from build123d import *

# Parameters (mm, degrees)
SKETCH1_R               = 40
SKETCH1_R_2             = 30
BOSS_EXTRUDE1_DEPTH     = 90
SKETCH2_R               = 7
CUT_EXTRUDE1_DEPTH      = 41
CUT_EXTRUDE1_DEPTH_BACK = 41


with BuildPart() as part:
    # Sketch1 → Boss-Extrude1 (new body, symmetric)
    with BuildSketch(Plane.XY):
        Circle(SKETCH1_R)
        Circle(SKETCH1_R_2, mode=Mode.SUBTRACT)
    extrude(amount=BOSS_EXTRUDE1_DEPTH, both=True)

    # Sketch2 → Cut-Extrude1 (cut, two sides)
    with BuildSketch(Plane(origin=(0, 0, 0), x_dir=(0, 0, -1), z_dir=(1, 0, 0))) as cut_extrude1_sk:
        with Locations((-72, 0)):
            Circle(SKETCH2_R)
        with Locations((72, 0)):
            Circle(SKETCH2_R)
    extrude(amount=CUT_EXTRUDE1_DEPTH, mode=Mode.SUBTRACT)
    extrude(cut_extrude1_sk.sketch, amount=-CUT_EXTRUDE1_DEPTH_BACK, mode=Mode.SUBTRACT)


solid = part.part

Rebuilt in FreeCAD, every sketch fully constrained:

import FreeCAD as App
import Part
import Sketcher
Q = App.Units.Quantity

doc = App.newDocument("Part")
params = doc.addObject("Spreadsheet::Sheet", "Params")
for row, (alias, value) in enumerate([
    ("sketch1_diameter", "80 mm"),
    ("sketch1_diameter2", "60 mm"),
    ("pad1_length", "180 mm"),
    ("sketch2_diameter", "14 mm"),
], start=1):
    params.set(f"A{row}", alias)
    params.set(f"B{row}", "=" + value)
    params.setAlias(f"B{row}", alias)

body = doc.addObject("PartDesign::Body", "Body")

sketch1 = body.newObject("Sketcher::SketchObject", "Sketch")
sketch1.AttachmentSupport = (doc.getObject("XY_Plane"), [""])
sketch1.MapMode = "FlatFace"
sketch1.addGeometry([
    Part.Circle(App.Vector(0, 0, 0), App.Vector(0, 0, 1), 40),
    Part.Circle(App.Vector(0, 0, 0), App.Vector(0, 0, 1), 30),
], False)
sketch1.addConstraint([
    Sketcher.Constraint("Coincident", 0, 3, -1, 1),
    Sketcher.Constraint("Coincident", 1, 3, -1, 1),
    Sketcher.Constraint("Diameter", 0, Q("80 mm")),
    Sketcher.Constraint("Diameter", 1, Q("60 mm")),
])
sketch1.setExpression("Constraints[2]", "Params.sketch1_diameter")
sketch1.setExpression("Constraints[3]", "Params.sketch1_diameter2")
pad1 = body.newObject("PartDesign::Pad", "Pad")
pad1.Profile = sketch1
pad1.setExpression("Length", "Params.pad1_length")
pad1.Midplane = True

sketch2 = body.newObject("Sketcher::SketchObject", "Sketch001")
sketch2.AttachmentSupport = (doc.getObject("YZ_Plane"), [""])
sketch2.MapMode = "FlatFace"
sketch2.addGeometry([
    Part.Circle(App.Vector(0, 72, 0), App.Vector(0, 0, 1), 7),
    Part.Circle(App.Vector(0, -72, 0), App.Vector(0, 0, 1), 7),
], False)
sketch2.addConstraint([
    Sketcher.Constraint("Equal", 0, 1),
    Sketcher.Constraint("Symmetric", 0, 3, 1, 3, -1, 1),
    Sketcher.Constraint("PointOnObject", 0, 3, -2),
    Sketcher.Constraint("Diameter", 0, Q("14 mm")),
    Sketcher.Constraint("DistanceY", -1, 1, 0, 3, Q("72 mm")),
])
sketch2.setExpression("Constraints[3]", "Params.sketch2_diameter")
pocket1 = body.newObject("PartDesign::Pocket", "Pocket")
pocket1.Profile = sketch2
pocket1.Type = "ThroughAll"
pocket1.Midplane = True

doc.recompute()
